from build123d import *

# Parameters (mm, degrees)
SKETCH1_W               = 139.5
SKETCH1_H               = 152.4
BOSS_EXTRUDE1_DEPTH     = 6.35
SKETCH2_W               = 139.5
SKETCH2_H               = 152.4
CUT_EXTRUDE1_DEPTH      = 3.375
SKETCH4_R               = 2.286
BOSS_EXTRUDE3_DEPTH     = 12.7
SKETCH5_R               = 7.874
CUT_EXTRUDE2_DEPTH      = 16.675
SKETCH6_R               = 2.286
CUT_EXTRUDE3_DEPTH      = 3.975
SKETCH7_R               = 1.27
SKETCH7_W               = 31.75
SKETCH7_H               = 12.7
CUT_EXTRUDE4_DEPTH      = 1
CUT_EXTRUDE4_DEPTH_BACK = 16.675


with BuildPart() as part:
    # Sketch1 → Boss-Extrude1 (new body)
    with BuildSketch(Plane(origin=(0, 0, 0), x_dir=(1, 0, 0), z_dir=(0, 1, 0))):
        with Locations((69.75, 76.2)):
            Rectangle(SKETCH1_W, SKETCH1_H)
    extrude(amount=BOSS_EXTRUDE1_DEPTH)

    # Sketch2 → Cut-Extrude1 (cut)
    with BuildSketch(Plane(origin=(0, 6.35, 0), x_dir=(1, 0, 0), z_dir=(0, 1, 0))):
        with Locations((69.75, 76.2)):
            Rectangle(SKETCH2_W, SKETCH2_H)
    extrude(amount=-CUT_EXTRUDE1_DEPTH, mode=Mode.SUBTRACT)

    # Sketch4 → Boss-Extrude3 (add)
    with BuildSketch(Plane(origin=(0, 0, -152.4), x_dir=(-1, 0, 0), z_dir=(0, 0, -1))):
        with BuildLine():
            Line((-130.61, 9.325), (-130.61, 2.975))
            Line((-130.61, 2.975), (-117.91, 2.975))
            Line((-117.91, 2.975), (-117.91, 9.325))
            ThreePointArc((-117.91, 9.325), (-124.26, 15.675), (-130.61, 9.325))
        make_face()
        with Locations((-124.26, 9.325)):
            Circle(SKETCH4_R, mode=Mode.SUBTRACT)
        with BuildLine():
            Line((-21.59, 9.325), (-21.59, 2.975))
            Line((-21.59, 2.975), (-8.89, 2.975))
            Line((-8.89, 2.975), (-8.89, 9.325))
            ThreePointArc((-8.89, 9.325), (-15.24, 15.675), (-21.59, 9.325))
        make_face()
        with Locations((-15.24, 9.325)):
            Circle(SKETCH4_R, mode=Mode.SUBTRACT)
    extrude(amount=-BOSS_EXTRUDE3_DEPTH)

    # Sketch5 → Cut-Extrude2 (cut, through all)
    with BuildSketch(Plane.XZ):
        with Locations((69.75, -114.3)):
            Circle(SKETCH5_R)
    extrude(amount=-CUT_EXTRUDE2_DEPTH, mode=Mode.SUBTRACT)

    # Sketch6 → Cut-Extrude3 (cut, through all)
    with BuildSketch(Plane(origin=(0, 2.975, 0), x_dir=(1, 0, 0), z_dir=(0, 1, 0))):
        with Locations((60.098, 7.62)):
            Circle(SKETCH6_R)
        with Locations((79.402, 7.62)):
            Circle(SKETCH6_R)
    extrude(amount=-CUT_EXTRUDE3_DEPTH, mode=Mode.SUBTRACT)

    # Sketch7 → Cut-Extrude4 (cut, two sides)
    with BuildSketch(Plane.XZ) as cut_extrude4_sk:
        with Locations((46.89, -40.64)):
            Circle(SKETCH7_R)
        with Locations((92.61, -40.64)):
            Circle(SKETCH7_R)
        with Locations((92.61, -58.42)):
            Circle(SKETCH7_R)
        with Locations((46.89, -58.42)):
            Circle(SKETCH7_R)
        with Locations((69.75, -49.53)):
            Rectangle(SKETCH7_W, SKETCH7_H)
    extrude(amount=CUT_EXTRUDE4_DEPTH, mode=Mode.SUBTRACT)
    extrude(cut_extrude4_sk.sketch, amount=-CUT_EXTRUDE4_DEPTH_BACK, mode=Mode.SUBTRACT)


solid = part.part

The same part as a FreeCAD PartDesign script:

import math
import FreeCAD as App
import Part
import Sketcher
from FreeCAD import Vector
Q = App.Units.Quantity

doc = App.newDocument("Part")
body = doc.addObject("PartDesign::Body", "Body")

sketch1 = doc.addObject("Sketcher::SketchObject", "Sketch")
body.addObject(sketch1)
sketch1.AttachmentSupport = (doc.XZ_Plane, [""])
sketch1.MapMode = "FlatFace"
sketch1.addGeometry(Part.LineSegment(Vector(0, -152, 0), Vector(0, 0, 0)), False)
sketch1.addGeometry(Part.LineSegment(Vector(0, 0, 0), Vector(140, 0, 0)), False)
sketch1.addGeometry(Part.LineSegment(Vector(140, 0, 0), Vector(140, -152, 0)), False)
sketch1.addGeometry(Part.LineSegment(Vector(140, -152, 0), Vector(0, -152, 0)), False)
sketch1.addConstraint(Sketcher.Constraint("Coincident", 0, 2, 1, 1))
sketch1.addConstraint(Sketcher.Constraint("Coincident", 1, 2, 2, 1))
sketch1.addConstraint(Sketcher.Constraint("Coincident", 2, 2, 3, 1))
sketch1.addConstraint(Sketcher.Constraint("Coincident", 3, 2, 0, 1))
sketch1.addConstraint(Sketcher.Constraint("Vertical", 0))
sketch1.addConstraint(Sketcher.Constraint("Horizontal", 1))
sketch1.addConstraint(Sketcher.Constraint("Vertical", 2))
sketch1.addConstraint(Sketcher.Constraint("Horizontal", 3))
sketch1.addConstraint(Sketcher.Constraint("Coincident", 0, 2, -1, 1))
sketch1.addConstraint(Sketcher.Constraint("DistanceY", 0, 1, 0, 2, Q("6 in")))
sketch1.addConstraint(Sketcher.Constraint("DistanceX", 1, 1, 1, 2, Q("139.5 mm")))
pad1 = doc.addObject("PartDesign::Pad", "Pad")
body.addObject(pad1)
pad1.Profile = sketch1
pad1.Length = Q("0.25 in")
pad1.Reversed = True

sketch2 = doc.addObject("Sketcher::SketchObject", "Sketch001")
body.addObject(sketch2)
sketch2.AttachmentSupport = (doc.XZ_Plane, [""])
sketch2.MapMode = "FlatFace"
sketch2.AttachmentOffset = App.Placement(Vector(0, 0, -0.25 * 25.4), App.Rotation())
sketch2.addGeometry(Part.LineSegment(Vector(0, -152, 0), Vector(0, 0, 0)), False)
sketch2.addGeometry(Part.LineSegment(Vector(0, 0, 0), Vector(140, 0, 0)), False)
sketch2.addGeometry(Part.LineSegment(Vector(140, 0, 0), Vector(140, -152, 0)), False)
sketch2.addGeometry(Part.LineSegment(Vector(140, -152, 0), Vector(0, -152, 0)), False)
sketch2.addConstraint(Sketcher.Constraint("Coincident", 0, 2, 1, 1))
sketch2.addConstraint(Sketcher.Constraint("Coincident", 1, 2, 2, 1))
sketch2.addConstraint(Sketcher.Constraint("Coincident", 2, 2, 3, 1))
sketch2.addConstraint(Sketcher.Constraint("Coincident", 3, 2, 0, 1))
sketch2.addConstraint(Sketcher.Constraint("Vertical", 0))
sketch2.addConstraint(Sketcher.Constraint("Horizontal", 1))
sketch2.addConstraint(Sketcher.Constraint("Vertical", 2))
sketch2.addConstraint(Sketcher.Constraint("Horizontal", 3))
sketch2.addConstraint(Sketcher.Constraint("Coincident", 0, 2, -1, 1))
sketch2.addConstraint(Sketcher.Constraint("DistanceY", 0, 1, 0, 2, Q("6 in")))
sketch2.addConstraint(Sketcher.Constraint("DistanceX", 1, 1, 1, 2, Q("139.5 mm")))
pocket1 = doc.addObject("PartDesign::Pocket", "Pocket")
body.addObject(pocket1)
pocket1.Profile = sketch2
pocket1.Length = 3.375
pocket1.Reversed = True

sketch3 = doc.addObject("Sketcher::SketchObject", "Sketch002")
body.addObject(sketch3)
sketch3.AttachmentSupport = (doc.XY_Plane, [""])
sketch3.MapMode = "FlatFace"
sketch3.AttachmentOffset = App.Placement(Vector(0, 0, -6 * 25.4), App.Rotation())
sketch3.addGeometry(Part.LineSegment(Vector(130.6, 9.3, 0), Vector(130.6, 3, 0)), False)
sketch3.addGeometry(Part.LineSegment(Vector(130.6, 3, 0), Vector(117.9, 3, 0)), False)
sketch3.addGeometry(Part.LineSegment(Vector(117.9, 3, 0), Vector(117.9, 9.3, 0)), False)
sketch3.addGeometry(Part.ArcOfCircle(Part.Circle(Vector(124.3, 9.3, 0), Vector(0, 0, 1), 6.3), math.radians(0), math.radians(180)), False)
sketch3.addGeometry(Part.Circle(Vector(124.3, 9.3, 0), Vector(0, 0, 1), 2.3), False)
sketch3.addGeometry(Part.LineSegment(Vector(21.6, 9.3, 0), Vector(21.6, 3, 0)), False)
sketch3.addGeometry(Part.LineSegment(Vector(21.6, 3, 0), Vector(8.9, 3, 0)), False)
sketch3.addGeometry(Part.LineSegment(Vector(8.9, 3, 0), Vector(8.9, 9.3, 0)), False)
sketch3.addGeometry(Part.ArcOfCircle(Part.Circle(Vector(15.2, 9.3, 0), Vector(0, 0, 1), 6.3), math.radians(0), math.radians(180)), False)
sketch3.addGeometry(Part.Circle(Vector(15.2, 9.3, 0), Vector(0, 0, 1), 2.3), False)
sketch3.addConstraint(Sketcher.Constraint("Coincident", 0, 2, 1, 1))
sketch3.addConstraint(Sketcher.Constraint("Coincident", 1, 2, 2, 1))
sketch3.addConstraint(Sketcher.Constraint("Tangent", 2, 2, 3, 2))
sketch3.addConstraint(Sketcher.Constraint("Tangent", 3, 1, 0, 1))
sketch3.addConstraint(Sketcher.Constraint("Coincident", 5, 2, 6, 1))
sketch3.addConstraint(Sketcher.Constraint("Coincident", 6, 2, 7, 1))
sketch3.addConstraint(Sketcher.Constraint("Tangent", 7, 2, 8, 2))
sketch3.addConstraint(Sketcher.Constraint("Tangent", 8, 1, 5, 1))
sketch3.addConstraint(Sketcher.Constraint("Vertical", 0))
sketch3.addConstraint(Sketcher.Constraint("Horizontal", 1))
sketch3.addConstraint(Sketcher.Constraint("Vertical", 2))
sketch3.addConstraint(Sketcher.Constraint("Vertical", 5))
sketch3.addConstraint(Sketcher.Constraint("Horizontal", 6))
sketch3.addConstraint(Sketcher.Constraint("Vertical", 7))
sketch3.addConstraint(Sketcher.Constraint("Coincident", 4, 3, 3, 3))
sketch3.addConstraint(Sketcher.Constraint("Coincident", 9, 3, 8, 3))
sketch3.addConstraint(Sketcher.Constraint("Equal", 3, 8))
sketch3.addConstraint(Sketcher.Constraint("Equal", 4, 9))
sketch3.addConstraint(Sketcher.Constraint("Horizontal", 4, 3, 8, 3))
sketch3.addConstraint(Sketcher.Constraint("Horizontal", 1, 2, 5, 2))
sketch3.addConstraint(Sketcher.Constraint("Diameter", 4, Q("0.18 in")))
sketch3.addConstraint(Sketcher.Constraint("Radius", 3, Q("0.25 in")))
sketch3.addConstraint(Sketcher.Constraint("DistanceY", 0, 2, 0, 1, Q("0.25 in")))
sketch3.addConstraint(Sketcher.Constraint("DistanceX", -1, 1, 8, 3, Q("0.6 in")))
sketch3.addConstraint(Sketcher.Constraint("DistanceX", -1, 1, 3, 3, Q("124.26 mm")))
sketch3.addConstraint(Sketcher.Constraint("DistanceY", -1, 1, 3, 3, Q("9.325 mm")))
pad2 = doc.addObject("PartDesign::Pad", "Pad001")
body.addObject(pad2)
pad2.Profile = sketch3
pad2.Length = Q("0.5 in")

sketch4 = doc.addObject("Sketcher::SketchObject", "Sketch003")
body.addObject(sketch4)
sketch4.AttachmentSupport = (doc.XZ_Plane, [""])
sketch4.MapMode = "FlatFace"
sketch4.addGeometry(Part.Circle(Vector(70, -114, 0), Vector(0, 0, 1), 8), False)
sketch4.addConstraint(Sketcher.Constraint("Diameter", 0, Q("0.62 in")))
sketch4.addConstraint(Sketcher.Constraint("DistanceY", 0, 3, -1, 1, Q("4.5 in")))
sketch4.addConstraint(Sketcher.Constraint("DistanceX", -1, 1, 0, 3, Q("69.75 mm")))
pocket2 = doc.addObject("PartDesign::Pocket", "Pocket001")
body.addObject(pocket2)
pocket2.Profile = sketch4
pocket2.Type = "ThroughAll"

sketch5 = doc.addObject("Sketcher::SketchObject", "Sketch004")
body.addObject(sketch5)
sketch5.AttachmentSupport = (doc.XZ_Plane, [""])
sketch5.MapMode = "FlatFace"
sketch5.AttachmentOffset = App.Placement(Vector(0, 0, -2.975), App.Rotation())
sketch5.addGeometry(Part.Circle(Vector(60.1, -7.6, 0), Vector(0, 0, 1), 2.3), False)
sketch5.addGeometry(Part.Circle(Vector(79.4, -7.6, 0), Vector(0, 0, 1), 2.3), False)
sketch5.addConstraint(Sketcher.Constraint("Equal", 0, 1))
sketch5.addConstraint(Sketcher.Constraint("Horizontal", 0, 3, 1, 3))
sketch5.addConstraint(Sketcher.Constraint("Diameter", 0, Q("0.18 in")))
sketch5.addConstraint(Sketcher.Constraint("DistanceY", 0, 3, -1, 1, Q("0.3 in")))
sketch5.addConstraint(Sketcher.Constraint("DistanceX", 0, 3, 1, 3, Q("0.76 in")))
sketch5.addConstraint(Sketcher.Constraint("DistanceX", -1, 1, 0, 3, Q("60.098 mm")))
pocket3 = doc.addObject("PartDesign::Pocket", "Pocket002")
body.addObject(pocket3)
pocket3.Profile = sketch5
pocket3.Type = "ThroughAll"
pocket3.Reversed = True

sketch6 = doc.addObject("Sketcher::SketchObject", "Sketch005")
body.addObject(sketch6)
sketch6.AttachmentSupport = (doc.XZ_Plane, [""])
sketch6.MapMode = "FlatFace"
sketch6.addGeometry(Part.Circle(Vector(46.9, -40.6, 0), Vector(0, 0, 1), 1.3), False)
sketch6.addGeometry(Part.Circle(Vector(92.6, -40.6, 0), Vector(0, 0, 1), 1.3), False)
sketch6.addGeometry(Part.Circle(Vector(92.6, -58.4, 0), Vector(0, 0, 1), 1.3), False)
sketch6.addGeometry(Part.Circle(Vector(46.9, -58.4, 0), Vector(0, 0, 1), 1.3), False)
sketch6.addGeometry(Part.LineSegment(Vector(53.9, -43.2, 0), Vector(53.9, -55.9, 0)), False)
sketch6.addGeometry(Part.LineSegment(Vector(53.9, -55.9, 0), Vector(85.6, -55.9, 0)), False)
sketch6.addGeometry(Part.LineSegment(Vector(85.6, -55.9, 0), Vector(85.6, -43.2, 0)), False)
sketch6.addGeometry(Part.LineSegment(Vector(85.6, -43.2, 0), Vector(53.9, -43.2, 0)), False)
sketch6.addConstraint(Sketcher.Constraint("Coincident", 4, 2, 5, 1))
sketch6.addConstraint(Sketcher.Constraint("Coincident", 5, 2, 6, 1))
sketch6.addConstraint(Sketcher.Constraint("Coincident", 6, 2, 7, 1))
sketch6.addConstraint(Sketcher.Constraint("Coincident", 7, 2, 4, 1))
sketch6.addConstraint(Sketcher.Constraint("Vertical", 4))
sketch6.addConstraint(Sketcher.Constraint("Horizontal", 5))
sketch6.addConstraint(Sketcher.Constraint("Vertical", 6))
sketch6.addConstraint(Sketcher.Constraint("Horizontal", 7))
sketch6.addConstraint(Sketcher.Constraint("Equal", 0, 1))
sketch6.addConstraint(Sketcher.Constraint("Equal", 1, 2))
sketch6.addConstraint(Sketcher.Constraint("Equal", 2, 3))
sketch6.addConstraint(Sketcher.Constraint("Horizontal", 0, 3, 1, 3))
sketch6.addConstraint(Sketcher.Constraint("Horizontal", 2, 3, 3, 3))
sketch6.addConstraint(Sketcher.Constraint("Vertical", 1, 3, 2, 3))
sketch6.addConstraint(Sketcher.Constraint("Vertical", 0, 3, 3, 3))
sketch6.addConstraint(Sketcher.Constraint("Diameter", 0, Q("0.1 in")))
sketch6.addConstraint(Sketcher.Constraint("DistanceY", 4, 2, 4, 1, Q("0.5 in")))
sketch6.addConstraint(Sketcher.Constraint("DistanceX", 5, 1, 5, 2, Q("1.25 in")))
sketch6.addConstraint(Sketcher.Constraint("DistanceY", 0, 3, -1, 1, Q("1.6 in")))
sketch6.addConstraint(Sketcher.Constraint("DistanceY", 2, 3, -1, 1, Q("2.3 in")))
sketch6.addConstraint(Sketcher.Constraint("DistanceY", 4, 2, -1, 1, Q("2.2 in")))
sketch6.addConstraint(Sketcher.Constraint("DistanceX", 0, 3, 1, 3, Q("1.8 in")))
sketch6.addConstraint(Sketcher.Constraint("DistanceX", 3, 3, 4, 2, Q("0.275 in")))
sketch6.addConstraint(Sketcher.Constraint("DistanceX", -1, 1, 0, 3, Q("46.89 mm")))
pocket4 = doc.addObject("PartDesign::Pocket", "Pocket003")
body.addObject(pocket4)
pocket4.Profile = sketch6
pocket4.Type = "ThroughAll"
pocket4.Midplane = True

doc.recompute()
